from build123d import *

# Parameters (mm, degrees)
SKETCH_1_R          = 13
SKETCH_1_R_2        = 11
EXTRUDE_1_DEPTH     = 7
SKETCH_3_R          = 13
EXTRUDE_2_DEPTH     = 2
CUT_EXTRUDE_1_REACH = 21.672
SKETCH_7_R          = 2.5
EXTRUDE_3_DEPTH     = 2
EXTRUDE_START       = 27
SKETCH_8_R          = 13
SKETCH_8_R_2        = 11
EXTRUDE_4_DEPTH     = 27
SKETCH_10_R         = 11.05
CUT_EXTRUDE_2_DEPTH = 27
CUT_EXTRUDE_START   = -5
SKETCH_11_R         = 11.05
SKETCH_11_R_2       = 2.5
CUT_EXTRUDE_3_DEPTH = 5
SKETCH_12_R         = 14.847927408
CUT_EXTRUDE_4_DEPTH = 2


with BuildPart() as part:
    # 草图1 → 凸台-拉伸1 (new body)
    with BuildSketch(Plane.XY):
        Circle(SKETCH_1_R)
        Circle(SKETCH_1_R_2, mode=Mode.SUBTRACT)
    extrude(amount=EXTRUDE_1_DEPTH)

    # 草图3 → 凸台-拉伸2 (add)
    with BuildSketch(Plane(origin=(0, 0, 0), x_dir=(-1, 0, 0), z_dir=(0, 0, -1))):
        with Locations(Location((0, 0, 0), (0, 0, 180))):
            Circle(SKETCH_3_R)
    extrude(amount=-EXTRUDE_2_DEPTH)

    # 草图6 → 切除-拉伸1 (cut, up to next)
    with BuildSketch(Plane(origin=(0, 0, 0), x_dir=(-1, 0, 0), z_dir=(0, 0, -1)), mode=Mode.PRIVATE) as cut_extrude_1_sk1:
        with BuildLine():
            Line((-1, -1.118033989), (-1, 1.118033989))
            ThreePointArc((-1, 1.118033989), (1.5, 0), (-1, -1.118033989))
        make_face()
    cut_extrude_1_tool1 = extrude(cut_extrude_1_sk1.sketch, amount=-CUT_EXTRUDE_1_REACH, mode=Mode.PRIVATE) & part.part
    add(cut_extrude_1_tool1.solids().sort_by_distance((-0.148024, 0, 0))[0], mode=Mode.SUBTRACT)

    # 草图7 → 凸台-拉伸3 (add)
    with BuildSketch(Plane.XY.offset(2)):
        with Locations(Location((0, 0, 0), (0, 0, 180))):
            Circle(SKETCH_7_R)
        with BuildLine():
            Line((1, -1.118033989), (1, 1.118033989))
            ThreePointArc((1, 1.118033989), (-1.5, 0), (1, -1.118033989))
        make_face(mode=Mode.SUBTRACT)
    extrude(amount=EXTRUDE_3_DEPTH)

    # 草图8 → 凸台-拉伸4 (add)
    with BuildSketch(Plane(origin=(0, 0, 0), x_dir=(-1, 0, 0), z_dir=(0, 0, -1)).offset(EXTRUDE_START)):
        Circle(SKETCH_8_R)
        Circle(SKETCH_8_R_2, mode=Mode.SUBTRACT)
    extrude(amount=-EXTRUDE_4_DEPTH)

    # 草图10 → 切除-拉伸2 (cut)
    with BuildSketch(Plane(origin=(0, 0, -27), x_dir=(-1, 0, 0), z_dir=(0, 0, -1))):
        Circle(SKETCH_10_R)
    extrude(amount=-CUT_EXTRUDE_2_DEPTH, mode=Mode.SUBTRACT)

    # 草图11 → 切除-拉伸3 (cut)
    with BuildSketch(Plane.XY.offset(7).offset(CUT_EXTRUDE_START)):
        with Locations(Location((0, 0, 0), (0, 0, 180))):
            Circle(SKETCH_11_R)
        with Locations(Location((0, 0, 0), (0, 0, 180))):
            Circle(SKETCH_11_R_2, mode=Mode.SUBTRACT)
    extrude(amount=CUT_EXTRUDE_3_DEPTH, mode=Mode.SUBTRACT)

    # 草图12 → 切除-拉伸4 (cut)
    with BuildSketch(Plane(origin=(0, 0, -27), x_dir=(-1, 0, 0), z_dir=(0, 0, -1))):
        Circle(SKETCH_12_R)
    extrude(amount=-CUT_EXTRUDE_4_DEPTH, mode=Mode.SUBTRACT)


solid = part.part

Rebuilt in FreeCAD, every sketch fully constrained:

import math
import FreeCAD as App
import Part
import Sketcher

doc = App.newDocument("Part")
body = doc.addObject("PartDesign::Body", "Body")

# Sketch on XY plane
sketch1 = doc.addObject("Sketcher::SketchObject", "Sketch")
body.addObject(sketch1)
sketch1.AttachmentSupport = (doc.XY_Plane, [""])
sketch1.MapMode = "FlatFace"
sketch1.addGeometry([
    Part.Circle(App.Vector(0, 0, 0), App.Vector(0, 0, 1), 13),
    Part.Circle(App.Vector(0, 0, 0), App.Vector(0, 0, 1), 11),
], False)
sketch1.addConstraint([
    Sketcher.Constraint("Coincident", 0, 3, -1, 1),
    Sketcher.Constraint("Coincident", 1, 3, -1, 1),
    Sketcher.Constraint("Diameter", 0, 26.0),
    Sketcher.Constraint("Diameter", 1, 22.0),
])
pad1 = doc.addObject("PartDesign::Pad", "Pad")
body.addObject(pad1)
pad1.Profile = sketch1
pad1.Length = 7

# Sketch on XY plane
sketch2 = doc.addObject("Sketcher::SketchObject", "Sketch001")
body.addObject(sketch2)
sketch2.AttachmentSupport = (doc.XY_Plane, [""])
sketch2.MapMode = "FlatFace"
sketch2.addGeometry(Part.Circle(App.Vector(0, 0, 0), App.Vector(0, 0, 1), 13), False)
sketch2.addConstraint([
    Sketcher.Constraint("Coincident", 0, 3, -1, 1),
    Sketcher.Constraint("Diameter", 0, 26.0),
])
pad2 = doc.addObject("PartDesign::Pad", "Pad001")
body.addObject(pad2)
pad2.Profile = sketch2
pad2.Length = 2

# Sketch on XY plane
sketch3 = doc.addObject("Sketcher::SketchObject", "Sketch002")
body.addObject(sketch3)
sketch3.AttachmentSupport = (doc.XY_Plane, [""])
sketch3.MapMode = "FlatFace"
sketch3.addGeometry([
    Part.LineSegment(App.Vector(1, 1.1, 0), App.Vector(1, -1.1, 0)),
    Part.ArcOfCircle(Part.Circle(App.Vector(0, 0, 0), App.Vector(0, 0, 1), 1.5), math.radians(48), math.radians(312)),
], False)
sketch3.addConstraint([
    Sketcher.Constraint("Coincident", 0, 1, 1, 1),
    Sketcher.Constraint("Coincident", 1, 2, 0, 2),
    Sketcher.Constraint("Vertical", 0),
    Sketcher.Constraint("Coincident", 1, 3, -1, 1),
    Sketcher.Constraint("Radius", 1, 1.5),
    Sketcher.Constraint("DistanceX", -1, 1, 0, 1, 1.0),
])
pocket1 = doc.addObject("PartDesign::Pocket", "Pocket")
body.addObject(pocket1)
pocket1.Profile = sketch3
pocket1.Type = "UpToFirst"
pocket1.Reversed = True

# Sketch on XY plane
sketch4 = doc.addObject("Sketcher::SketchObject", "Sketch003")
body.addObject(sketch4)
sketch4.AttachmentSupport = (doc.XY_Plane, [""])
sketch4.MapMode = "FlatFace"
sketch4.AttachmentOffset = App.Placement(App.Vector(0, 0, 2), App.Rotation())
sketch4.addGeometry([
    Part.Circle(App.Vector(0, 0, 0), App.Vector(0, 0, 1), 2.5),
    Part.LineSegment(App.Vector(1, 1.1, 0), App.Vector(1, -1.1, 0)),
    Part.ArcOfCircle(Part.Circle(App.Vector(0, 0, 0), App.Vector(0, 0, 1), 1.5), math.radians(48), math.radians(312)),
], False)
sketch4.addConstraint([
    Sketcher.Constraint("Coincident", 1, 1, 2, 1),
    Sketcher.Constraint("Coincident", 2, 2, 1, 2),
    Sketcher.Constraint("Vertical", 1),
    Sketcher.Constraint("Coincident", 0, 3, -1, 1),
    Sketcher.Constraint("Coincident", 2, 3, -1, 1),
    Sketcher.Constraint("Diameter", 0, 5.0),
    Sketcher.Constraint("Radius", 2, 1.5),
    Sketcher.Constraint("DistanceX", -1, 1, 1, 1, 1.0),
])
pad3 = doc.addObject("PartDesign::Pad", "Pad002")
body.addObject(pad3)
pad3.Profile = sketch4
pad3.Length = 2

# Sketch on XY plane
sketch5 = doc.addObject("Sketcher::SketchObject", "Sketch004")
body.addObject(sketch5)
sketch5.AttachmentSupport = (doc.XY_Plane, [""])
sketch5.MapMode = "FlatFace"
sketch5.AttachmentOffset = App.Placement(App.Vector(0, 0, -27), App.Rotation())
sketch5.addGeometry([
    Part.Circle(App.Vector(0, 0, 0), App.Vector(0, 0, 1), 13),
    Part.Circle(App.Vector(0, 0, 0), App.Vector(0, 0, 1), 11),
], False)
sketch5.addConstraint([
    Sketcher.Constraint("Coincident", 0, 3, -1, 1),
    Sketcher.Constraint("Coincident", 1, 3, -1, 1),
    Sketcher.Constraint("Diameter", 0, 26.0),
    Sketcher.Constraint("Diameter", 1, 22.0),
])
pad4 = doc.addObject("PartDesign::Pad", "Pad003")
body.addObject(pad4)
pad4.Profile = sketch5
pad4.Length = 27

# Sketch on XY plane
sketch6 = doc.addObject("Sketcher::SketchObject", "Sketch005")
body.addObject(sketch6)
sketch6.AttachmentSupport = (doc.XY_Plane, [""])
sketch6.MapMode = "FlatFace"
sketch6.AttachmentOffset = App.Placement(App.Vector(0, 0, -27), App.Rotation())
sketch6.addGeometry(Part.Circle(App.Vector(0, 0, 0), App.Vector(0, 0, 1), 11), False)
sketch6.addConstraint([
    Sketcher.Constraint("Coincident", 0, 3, -1, 1),
    Sketcher.Constraint("Diameter", 0, 22.1),
])
pocket2 = doc.addObject("PartDesign::Pocket", "Pocket001")
body.addObject(pocket2)
pocket2.Profile = sketch6
pocket2.Length = 27
pocket2.Reversed = True

# Sketch on XY plane
sketch7 = doc.addObject("Sketcher::SketchObject", "Sketch006")
body.addObject(sketch7)
sketch7.AttachmentSupport = (doc.XY_Plane, [""])
sketch7.MapMode = "FlatFace"
sketch7.AttachmentOffset = App.Placement(App.Vector(0, 0, 2), App.Rotation())
sketch7.addGeometry([
    Part.Circle(App.Vector(0, 0, 0), App.Vector(0, 0, 1), 11.1),
    Part.Circle(App.Vector(0, 0, 0), App.Vector(0, 0, 1), 2.5),
], False)
sketch7.addConstraint([
    Sketcher.Constraint("Coincident", 0, 3, -1, 1),
    Sketcher.Constraint("Coincident", 1, 3, -1, 1),
    Sketcher.Constraint("Diameter", 1, 5.0),
    Sketcher.Constraint("Diameter", 0, 22.1),
])
pocket3 = doc.addObject("PartDesign::Pocket", "Pocket002")
body.addObject(pocket3)
pocket3.Profile = sketch7
pocket3.Length = 5
pocket3.Reversed = True

# Sketch on XY plane
sketch8 = doc.addObject("Sketcher::SketchObject", "Sketch007")
body.addObject(sketch8)
sketch8.AttachmentSupport = (doc.XY_Plane, [""])
sketch8.MapMode = "FlatFace"
sketch8.AttachmentOffset = App.Placement(App.Vector(0, 0, -27), App.Rotation())
sketch8.addGeometry(Part.Circle(App.Vector(0, 0, 0), App.Vector(0, 0, 1), 15), False)
sketch8.addConstraint([
    Sketcher.Constraint("Coincident", 0, 3, -1, 1),
    Sketcher.Constraint("Diameter", 0, 29.695855),
])
pocket4 = doc.addObject("PartDesign::Pocket", "Pocket003")
body.addObject(pocket4)
pocket4.Profile = sketch8
pocket4.Length = 2
pocket4.Reversed = True

doc.recompute()
